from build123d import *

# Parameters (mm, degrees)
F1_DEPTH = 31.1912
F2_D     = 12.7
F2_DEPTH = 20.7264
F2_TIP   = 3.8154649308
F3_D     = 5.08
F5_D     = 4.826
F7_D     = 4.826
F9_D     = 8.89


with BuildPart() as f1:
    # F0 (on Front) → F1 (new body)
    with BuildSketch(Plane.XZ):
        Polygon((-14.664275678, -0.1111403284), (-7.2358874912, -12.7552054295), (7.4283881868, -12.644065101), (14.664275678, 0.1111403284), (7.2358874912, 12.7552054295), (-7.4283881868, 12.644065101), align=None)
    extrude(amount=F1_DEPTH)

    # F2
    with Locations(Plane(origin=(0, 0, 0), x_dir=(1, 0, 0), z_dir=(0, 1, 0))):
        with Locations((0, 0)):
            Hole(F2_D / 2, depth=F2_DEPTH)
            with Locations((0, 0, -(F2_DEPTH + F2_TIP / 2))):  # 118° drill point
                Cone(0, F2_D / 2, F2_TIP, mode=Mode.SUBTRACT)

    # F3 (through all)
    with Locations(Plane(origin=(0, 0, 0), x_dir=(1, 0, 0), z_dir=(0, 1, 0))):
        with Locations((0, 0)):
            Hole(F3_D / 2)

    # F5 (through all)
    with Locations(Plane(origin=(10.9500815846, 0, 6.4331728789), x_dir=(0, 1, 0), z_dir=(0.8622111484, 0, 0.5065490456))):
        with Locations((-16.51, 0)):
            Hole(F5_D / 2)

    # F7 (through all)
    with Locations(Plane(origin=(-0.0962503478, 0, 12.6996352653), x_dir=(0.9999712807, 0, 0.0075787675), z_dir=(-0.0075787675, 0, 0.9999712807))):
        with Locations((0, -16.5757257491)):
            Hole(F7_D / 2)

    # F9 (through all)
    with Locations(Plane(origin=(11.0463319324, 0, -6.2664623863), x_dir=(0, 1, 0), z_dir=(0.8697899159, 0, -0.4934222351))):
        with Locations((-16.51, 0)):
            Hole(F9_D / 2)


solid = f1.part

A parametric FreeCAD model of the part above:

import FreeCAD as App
import Part
import Sketcher
from FreeCAD import Vector
Q = App.Units.Quantity

doc = App.newDocument("Part")
body = doc.addObject("PartDesign::Body", "Body")

# Sketch on XZ plane
sketch1 = doc.addObject("Sketcher::SketchObject", "Sketch")
body.addObject(sketch1)
sketch1.AttachmentSupport = (doc.XZ_Plane, [""])
sketch1.MapMode = "FlatFace"
sketch1.addGeometry([
    Part.LineSegment(Vector(-14.664276, -0.11114, 0), Vector(-7.235887, -12.755205, 0)),  # 0
    Part.LineSegment(Vector(-7.235887, -12.755205, 0), Vector(7.428388, -12.644065, 0)),  # 1
    Part.LineSegment(Vector(7.428388, -12.644065, 0), Vector(14.664276, 0.11114, 0)),  # 2
    Part.LineSegment(Vector(14.664276, 0.11114, 0), Vector(7.235887, 12.755205, 0)),  # 3
    Part.LineSegment(Vector(7.235887, 12.755205, 0), Vector(-7.428388, 12.644065, 0)),  # 4
    Part.LineSegment(Vector(-7.428388, 12.644065, 0), Vector(-14.664276, -0.11114, 0)),  # 5
], False)
sketch1.addConstraint([
    Sketcher.Constraint("Coincident", 0, 2, 1, 1),
    Sketcher.Constraint("Coincident", 1, 2, 2, 1),
    Sketcher.Constraint("Coincident", 2, 2, 3, 1),
    Sketcher.Constraint("Coincident", 3, 2, 4, 1),
    Sketcher.Constraint("Coincident", 4, 2, 5, 1),
    Sketcher.Constraint("Coincident", 5, 2, 0, 1),
    Sketcher.Constraint("Symmetric", 0, 2, 3, 2, -1, 1),
    Sketcher.Constraint("Symmetric", 1, 2, 4, 2, -1, 1),
    Sketcher.Constraint("Symmetric", 2, 2, 5, 2, -1, 1),
    Sketcher.Constraint("Equal", 0, 1),
    Sketcher.Constraint("Equal", 1, 2),
    Sketcher.Constraint("DistanceX", 3, 2, 1, 2, 0.192501),
    Sketcher.Constraint("DistanceX", -1, 1, 1, 2, 7.428388),
    Sketcher.Constraint("DistanceY", -1, 1, 2, 2, 0.11114),
    Sketcher.Constraint("DistanceY", 0, 2, 1, 2, 0.11114),
])
pad1 = doc.addObject("PartDesign::Pad", "Pad")
body.addObject(pad1)
pad1.Profile = sketch1
pad1.Length = Q("1.228 in")

# Sketch on XZ plane
sketch2 = doc.addObject("Sketcher::SketchObject", "Sketch001")
body.addObject(sketch2)
sketch2.AttachmentSupport = (doc.XZ_Plane, [""])
sketch2.MapMode = "FlatFace"
sketch2.addGeometry(Part.Circle(Vector(0, 0, 0), Vector(0, 0, 1), 6), False)
sketch2.addConstraint([
    Sketcher.Constraint("Coincident", 0, 3, -1, 1),
    Sketcher.Constraint("Diameter", 0, Q("0.5 in")),
])
doc.recompute()
hole = doc.addObject("PartDesign::Hole", "Hole")
body.addObject(hole)
hole.Profile = sketch2
hole.ThreadType = "None"
hole.Diameter = Q("0.5 in")
hole.DepthType = "Dimension"
hole.Depth = Q("0.816 in")
hole.DrillPoint = "Angled"
hole.DrillPointAngle = 118
hole.Reversed = True

# Sketch on XZ plane
sketch3 = doc.addObject("Sketcher::SketchObject", "Sketch002")
body.addObject(sketch3)
sketch3.AttachmentSupport = (doc.XZ_Plane, [""])
sketch3.MapMode = "FlatFace"
sketch3.addGeometry(Part.Circle(Vector(0, 0, 0), Vector(0, 0, 1), 2.5), False)
sketch3.addConstraint([
    Sketcher.Constraint("Coincident", 0, 3, -1, 1),
    Sketcher.Constraint("Diameter", 0, Q("0.2 in")),
])
doc.recompute()
hole2 = doc.addObject("PartDesign::Hole", "Hole001")
body.addObject(hole2)
hole2.Profile = sketch3
hole2.ThreadType = "None"
hole2.Diameter = Q("0.2 in")
hole2.DepthType = "ThroughAll"
hole2.Reversed = True

# Sketch on an angled plane
sketch4 = doc.addObject("Sketcher::SketchObject", "Sketch003")
body.addObject(sketch4)
sketch4.Placement = App.Placement(Vector(10.950082, 0, 6.433173), App.Rotation(Vector(0, 1, 0), Vector(-0.506549046, 0, 0.862211148), Vector(0.862211148, 0, 0.506549046), "ZXY"))
sketch4.addGeometry(Part.Circle(Vector(-16.5, 0, 0), Vector(0, 0, 1), 2.4), False)
sketch4.addConstraint([
    Sketcher.Constraint("PointOnObject", 0, 3, -1),
    Sketcher.Constraint("Diameter", 0, Q("0.19 in")),
    Sketcher.Constraint("DistanceX", 0, 3, -1, 1, Q("0.65 in")),
])
doc.recompute()
hole3 = doc.addObject("PartDesign::Hole", "Hole002")
body.addObject(hole3)
hole3.Profile = sketch4
hole3.ThreadType = "None"
hole3.Diameter = Q("0.19 in")
hole3.DepthType = "ThroughAll"

# Sketch on an angled plane
sketch5 = doc.addObject("Sketcher::SketchObject", "Sketch004")
body.addObject(sketch5)
sketch5.Placement = App.Placement(Vector(-0.09625, 0, 12.699635), App.Rotation(Vector(0.999971281, 0, 0.007578768), Vector(0, 1.000000001, 0), Vector(-0.007578768, 0, 0.999971281), "ZXY"))
sketch5.addGeometry(Part.Circle(Vector(0, -16.6, 0), Vector(0, 0, 1), 2.4), False)
sketch5.addConstraint([
    Sketcher.Constraint("PointOnObject", 0, 3, -2),
    Sketcher.Constraint("Diameter", 0, Q("0.19 in")),
    Sketcher.Constraint("DistanceY", 0, 3, -1, 1, 16.575726),
])
doc.recompute()
hole4 = doc.addObject("PartDesign::Hole", "Hole003")
body.addObject(hole4)
hole4.Profile = sketch5
hole4.ThreadType = "None"
hole4.Diameter = Q("0.19 in")
hole4.DepthType = "ThroughAll"

# Sketch on an angled plane
sketch6 = doc.addObject("Sketcher::SketchObject", "Sketch005")
body.addObject(sketch6)
sketch6.Placement = App.Placement(Vector(11.046332, 0, -6.266462), App.Rotation(Vector(0, 1, 0), Vector(0.493422235, 0, 0.869789916), Vector(0.869789916, 0, -0.493422235), "ZXY"))
sketch6.addGeometry(Part.Circle(Vector(-16.5, 0, 0), Vector(0, 0, 1), 4.4), False)
sketch6.addConstraint([
    Sketcher.Constraint("PointOnObject", 0, 3, -1),
    Sketcher.Constraint("Diameter", 0, Q("0.35 in")),
    Sketcher.Constraint("DistanceX", 0, 3, -1, 1, Q("0.65 in")),
])
doc.recompute()
hole5 = doc.addObject("PartDesign::Hole", "Hole004")
body.addObject(hole5)
hole5.Profile = sketch6
hole5.ThreadType = "None"
hole5.Diameter = Q("0.35 in")
hole5.DepthType = "ThroughAll"

doc.recompute()
